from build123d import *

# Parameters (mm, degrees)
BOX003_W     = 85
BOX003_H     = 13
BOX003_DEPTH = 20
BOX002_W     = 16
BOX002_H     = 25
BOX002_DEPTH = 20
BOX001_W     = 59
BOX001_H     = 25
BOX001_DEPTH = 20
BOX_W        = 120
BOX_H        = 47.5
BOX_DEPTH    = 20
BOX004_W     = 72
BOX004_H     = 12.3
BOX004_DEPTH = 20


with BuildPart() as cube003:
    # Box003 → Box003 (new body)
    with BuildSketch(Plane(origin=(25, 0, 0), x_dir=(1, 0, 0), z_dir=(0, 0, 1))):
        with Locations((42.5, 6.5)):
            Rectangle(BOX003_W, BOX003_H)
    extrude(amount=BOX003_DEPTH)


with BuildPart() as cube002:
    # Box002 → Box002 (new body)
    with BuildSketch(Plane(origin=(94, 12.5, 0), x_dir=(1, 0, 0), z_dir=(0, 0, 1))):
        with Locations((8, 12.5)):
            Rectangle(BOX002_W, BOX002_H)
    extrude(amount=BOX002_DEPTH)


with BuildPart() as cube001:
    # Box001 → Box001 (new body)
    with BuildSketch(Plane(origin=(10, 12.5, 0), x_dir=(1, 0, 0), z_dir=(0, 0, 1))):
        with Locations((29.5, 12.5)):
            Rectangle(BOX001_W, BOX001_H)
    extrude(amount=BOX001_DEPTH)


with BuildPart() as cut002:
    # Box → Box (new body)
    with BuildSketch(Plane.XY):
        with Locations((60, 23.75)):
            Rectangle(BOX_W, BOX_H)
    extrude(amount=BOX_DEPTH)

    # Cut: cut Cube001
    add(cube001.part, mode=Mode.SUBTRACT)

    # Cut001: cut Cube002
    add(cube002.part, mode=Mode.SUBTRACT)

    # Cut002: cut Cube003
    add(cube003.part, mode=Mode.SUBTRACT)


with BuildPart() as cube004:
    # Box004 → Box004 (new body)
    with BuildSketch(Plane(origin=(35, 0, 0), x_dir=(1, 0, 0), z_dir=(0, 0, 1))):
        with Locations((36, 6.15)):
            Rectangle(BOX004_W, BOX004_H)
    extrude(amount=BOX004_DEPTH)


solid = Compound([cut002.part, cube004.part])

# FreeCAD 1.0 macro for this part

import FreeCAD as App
import Part
import Sketcher
from FreeCAD import Vector

doc = App.newDocument("Part")
params = doc.addObject("Spreadsheet::Sheet", "Params")
for row, (alias, value) in enumerate([
    ("sketch1_width", "85 mm"),
    ("sketch1_height", "13 mm"),
    ("pad1_length", "20 mm"),
    ("sketch2_width", "16 mm"),
    ("sketch2_height", "25 mm"),
    ("pad2_length", "20 mm"),
    ("sketch3_width", "59 mm"),
    ("sketch3_height", "25 mm"),
    ("pad3_length", "20 mm"),
    ("sketch4_width", "120 mm"),
    ("sketch4_height", "47.5 mm"),
    ("pad4_length", "20 mm"),
    ("sketch5_width", "72 mm"),
    ("sketch5_height", "12.3 mm"),
    ("pad5_length", "20 mm"),
], start=1):
    params.set(f"A{row}", alias)
    params.set(f"B{row}", "=" + value)
    params.setAlias(f"B{row}", alias)

body = doc.addObject("PartDesign::Body", "Body")

# Sketch on XY plane
sketch1 = body.newObject("Sketcher::SketchObject", "Sketch")
sketch1.AttachmentSupport = (doc.getObject("XY_Plane"), [""])
sketch1.MapMode = "FlatFace"
sketch1.addGeometry([
    Part.LineSegment(Vector(25, 13, 0), Vector(25, 0, 0)),
    Part.LineSegment(Vector(25, 0, 0), Vector(110, 0, 0)),
    Part.LineSegment(Vector(110, 0, 0), Vector(110, 13, 0)),
    Part.LineSegment(Vector(110, 13, 0), Vector(25, 13, 0)),
], False)
sketch1.addConstraint([
    Sketcher.Constraint("Coincident", 0, 2, 1, 1),
    Sketcher.Constraint("Coincident", 1, 2, 2, 1),
    Sketcher.Constraint("Coincident", 2, 2, 3, 1),
    Sketcher.Constraint("Coincident", 3, 2, 0, 1),
    Sketcher.Constraint("Vertical", 0),
    Sketcher.Constraint("Horizontal", 1),
    Sketcher.Constraint("Vertical", 2),
    Sketcher.Constraint("Horizontal", 3),
    Sketcher.Constraint("PointOnObject", 0, 2, -1),
    Sketcher.Constraint("DistanceX", 1, 1, 1, 2, 85.0),
    Sketcher.Constraint("DistanceY", 0, 2, 0, 1, 13.0),
    Sketcher.Constraint("DistanceX", -1, 1, 0, 2, 25.0),
])
sketch1.setExpression("Constraints[9]", "Params.sketch1_width")
sketch1.setExpression("Constraints[10]", "Params.sketch1_height")
pad1 = body.newObject("PartDesign::Pad", "Pad")
pad1.Profile = sketch1
pad1.setExpression("Length", "Params.pad1_length")
body2 = doc.addObject("PartDesign::Body", "Body001")

# Sketch on XY plane
sketch2 = body2.newObject("Sketcher::SketchObject", "Sketch001")
sketch2.AttachmentSupport = (doc.getObject("XY_Plane001"), [""])
sketch2.MapMode = "FlatFace"
sketch2.addGeometry([
    Part.LineSegment(Vector(94, 38, 0), Vector(94, 12, 0)),
    Part.LineSegment(Vector(94, 12, 0), Vector(110, 12, 0)),
    Part.LineSegment(Vector(110, 12, 0), Vector(110, 38, 0)),
    Part.LineSegment(Vector(110, 38, 0), Vector(94, 38, 0)),
], False)
sketch2.addConstraint([
    Sketcher.Constraint("Coincident", 0, 2, 1, 1),
    Sketcher.Constraint("Coincident", 1, 2, 2, 1),
    Sketcher.Constraint("Coincident", 2, 2, 3, 1),
    Sketcher.Constraint("Coincident", 3, 2, 0, 1),
    Sketcher.Constraint("Vertical", 0),
    Sketcher.Constraint("Horizontal", 1),
    Sketcher.Constraint("Vertical", 2),
    Sketcher.Constraint("Horizontal", 3),
    Sketcher.Constraint("DistanceX", 1, 1, 1, 2, 16.0),
    Sketcher.Constraint("DistanceY", 0, 2, 0, 1, 25.0),
    Sketcher.Constraint("DistanceX", -1, 1, 0, 2, 94.0),
    Sketcher.Constraint("DistanceY", -1, 1, 0, 2, 12.5),
])
sketch2.setExpression("Constraints[8]", "Params.sketch2_width")
sketch2.setExpression("Constraints[9]", "Params.sketch2_height")
pad2 = body2.newObject("PartDesign::Pad", "Pad001")
pad2.Profile = sketch2
pad2.setExpression("Length", "Params.pad2_length")
body3 = doc.addObject("PartDesign::Body", "Body002")

# Sketch on XY plane
sketch3 = body3.newObject("Sketcher::SketchObject", "Sketch002")
sketch3.AttachmentSupport = (doc.getObject("XY_Plane002"), [""])
sketch3.MapMode = "FlatFace"
sketch3.addGeometry([
    Part.LineSegment(Vector(10, 38, 0), Vector(10, 12, 0)),
    Part.LineSegment(Vector(10, 12, 0), Vector(69, 12, 0)),
    Part.LineSegment(Vector(69, 12, 0), Vector(69, 38, 0)),
    Part.LineSegment(Vector(69, 38, 0), Vector(10, 38, 0)),
], False)
sketch3.addConstraint([
    Sketcher.Constraint("Coincident", 0, 2, 1, 1),
    Sketcher.Constraint("Coincident", 1, 2, 2, 1),
    Sketcher.Constraint("Coincident", 2, 2, 3, 1),
    Sketcher.Constraint("Coincident", 3, 2, 0, 1),
    Sketcher.Constraint("Vertical", 0),
    Sketcher.Constraint("Horizontal", 1),
    Sketcher.Constraint("Vertical", 2),
    Sketcher.Constraint("Horizontal", 3),
    Sketcher.Constraint("DistanceX", 1, 1, 1, 2, 59.0),
    Sketcher.Constraint("DistanceY", 0, 2, 0, 1, 25.0),
    Sketcher.Constraint("DistanceX", -1, 1, 0, 2, 10.0),
    Sketcher.Constraint("DistanceY", -1, 1, 0, 2, 12.5),
])
sketch3.setExpression("Constraints[8]", "Params.sketch3_width")
sketch3.setExpression("Constraints[9]", "Params.sketch3_height")
pad3 = body3.newObject("PartDesign::Pad", "Pad002")
pad3.Profile = sketch3
pad3.setExpression("Length", "Params.pad3_length")
body4 = doc.addObject("PartDesign::Body", "Body003")

# Sketch on XY plane
sketch4 = body4.newObject("Sketcher::SketchObject", "Sketch003")
sketch4.AttachmentSupport = (doc.getObject("XY_Plane003"), [""])
sketch4.MapMode = "FlatFace"
sketch4.addGeometry([
    Part.LineSegment(Vector(0, 48, 0), Vector(0, 0, 0)),
    Part.LineSegment(Vector(0, 0, 0), Vector(120, 0, 0)),
    Part.LineSegment(Vector(120, 0, 0), Vector(120, 48, 0)),
    Part.LineSegment(Vector(120, 48, 0), Vector(0, 48, 0)),
], False)
sketch4.addConstraint([
    Sketcher.Constraint("Coincident", 0, 2, 1, 1),
    Sketcher.Constraint("Coincident", 1, 2, 2, 1),
    Sketcher.Constraint("Coincident", 2, 2, 3, 1),
    Sketcher.Constraint("Coincident", 3, 2, 0, 1),
    Sketcher.Constraint("Vertical", 0),
    Sketcher.Constraint("Horizontal", 1),
    Sketcher.Constraint("Vertical", 2),
    Sketcher.Constraint("Horizontal", 3),
    Sketcher.Constraint("Coincident", 0, 2, -1, 1),
    Sketcher.Constraint("DistanceX", 1, 1, 1, 2, 120.0),
    Sketcher.Constraint("DistanceY", 0, 2, 0, 1, 47.5),
])
sketch4.setExpression("Constraints[9]", "Params.sketch4_width")
sketch4.setExpression("Constraints[10]", "Params.sketch4_height")
pad4 = body4.newObject("PartDesign::Pad", "Pad003")
pad4.Profile = sketch4
pad4.setExpression("Length", "Params.pad4_length")
doc.recompute()

boolean = body4.newObject("PartDesign::Boolean", "Boolean")
boolean.Type = "Cut"
boolean.addObjects([body3])
doc.recompute()

boolean2 = body4.newObject("PartDesign::Boolean", "Boolean001")
boolean2.Type = "Cut"
boolean2.addObjects([body2])
doc.recompute()

boolean3 = body4.newObject("PartDesign::Boolean", "Boolean002")
boolean3.Type = "Cut"
boolean3.addObjects([body])
body5 = doc.addObject("PartDesign::Body", "Body004")

# Sketch on XY plane
sketch5 = body5.newObject("Sketcher::SketchObject", "Sketch004")
sketch5.AttachmentSupport = (doc.getObject("XY_Plane004"), [""])
sketch5.MapMode = "FlatFace"
sketch5.addGeometry([
    Part.LineSegment(Vector(35, 12, 0), Vector(35, 0, 0)),
    Part.LineSegment(Vector(35, 0, 0), Vector(107, 0, 0)),
    Part.LineSegment(Vector(107, 0, 0), Vector(107, 12, 0)),
    Part.LineSegment(Vector(107, 12, 0), Vector(35, 12, 0)),
], False)
sketch5.addConstraint([
    Sketcher.Constraint("Coincident", 0, 2, 1, 1),
    Sketcher.Constraint("Coincident", 1, 2, 2, 1),
    Sketcher.Constraint("Coincident", 2, 2, 3, 1),
    Sketcher.Constraint("Coincident", 3, 2, 0, 1),
    Sketcher.Constraint("Vertical", 0),
    Sketcher.Constraint("Horizontal", 1),
    Sketcher.Constraint("Vertical", 2),
    Sketcher.Constraint("Horizontal", 3),
    Sketcher.Constraint("PointOnObject", 0, 2, -1),
    Sketcher.Constraint("DistanceX", 1, 1, 1, 2, 72.0),
    Sketcher.Constraint("DistanceY", 0, 2, 0, 1, 12.3),
    Sketcher.Constraint("DistanceX", -1, 1, 0, 2, 35.0),
])
sketch5.setExpression("Constraints[9]", "Params.sketch5_width")
sketch5.setExpression("Constraints[10]", "Params.sketch5_height")
pad5 = body5.newObject("PartDesign::Pad", "Pad004")
pad5.Profile = sketch5
pad5.setExpression("Length", "Params.pad5_length")

doc.recompute()
